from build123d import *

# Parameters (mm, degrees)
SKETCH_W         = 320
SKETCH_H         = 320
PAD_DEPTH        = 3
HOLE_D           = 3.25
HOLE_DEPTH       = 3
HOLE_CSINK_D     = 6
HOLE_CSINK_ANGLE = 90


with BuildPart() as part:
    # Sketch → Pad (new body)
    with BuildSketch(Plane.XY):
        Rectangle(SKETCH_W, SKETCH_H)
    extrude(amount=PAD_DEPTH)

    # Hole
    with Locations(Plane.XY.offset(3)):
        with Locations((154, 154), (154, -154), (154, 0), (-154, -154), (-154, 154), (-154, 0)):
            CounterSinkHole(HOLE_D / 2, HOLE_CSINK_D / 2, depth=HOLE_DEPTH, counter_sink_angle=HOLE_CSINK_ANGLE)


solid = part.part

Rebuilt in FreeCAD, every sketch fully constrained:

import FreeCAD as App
import Part
import Sketcher
from FreeCAD import Vector

doc = App.newDocument("Part")
body = doc.addObject("PartDesign::Body", "Body")

# Sketch on XY plane
sketch1 = body.newObject("Sketcher::SketchObject", "Sketch")
sketch1.AttachmentSupport = (doc.getObject("XY_Plane"), [""])
sketch1.MapMode = "FlatFace"
sketch1.addGeometry([
    Part.LineSegment(Vector(-160, 160, 0), Vector(-160, -160, 0)),
    Part.LineSegment(Vector(-160, -160, 0), Vector(160, -160, 0)),
    Part.LineSegment(Vector(160, -160, 0), Vector(160, 160, 0)),
    Part.LineSegment(Vector(160, 160, 0), Vector(-160, 160, 0)),
], False)
sketch1.addConstraint([
    Sketcher.Constraint("Coincident", 0, 2, 1, 1),
    Sketcher.Constraint("Coincident", 1, 2, 2, 1),
    Sketcher.Constraint("Coincident", 2, 2, 3, 1),
    Sketcher.Constraint("Coincident", 3, 2, 0, 1),
    Sketcher.Constraint("Vertical", 0),
    Sketcher.Constraint("Horizontal", 1),
    Sketcher.Constraint("Vertical", 2),
    Sketcher.Constraint("Horizontal", 3),
    Sketcher.Constraint("Symmetric", 0, 2, 2, 2, -1, 1),
    Sketcher.Constraint("Equal", 3, 0),
    Sketcher.Constraint("DistanceX", 1, 1, 1, 2, 320.0),
])
pad1 = body.newObject("PartDesign::Pad", "Pad")
pad1.Profile = sketch1
pad1.Length = 3

# Sketch on XY plane
sketch2 = body.newObject("Sketcher::SketchObject", "Sketch001")
sketch2.AttachmentSupport = (doc.getObject("XY_Plane"), [""])
sketch2.MapMode = "FlatFace"
sketch2.AttachmentOffset = App.Placement(Vector(0, 0, 3), App.Rotation())
sketch2.addGeometry([
    Part.Circle(Vector(154, 154, 0), Vector(0, 0, 1), 1.6),  # 0
    Part.Circle(Vector(154, -154, 0), Vector(0, 0, 1), 1.6),  # 1
    Part.Circle(Vector(154, 0, 0), Vector(0, 0, 1), 1.6),  # 2
    Part.Circle(Vector(-154, -154, 0), Vector(0, 0, 1), 1.6),  # 3
    Part.Circle(Vector(-154, 154, 0), Vector(0, 0, 1), 1.6),  # 4
    Part.Circle(Vector(-154, 0, 0), Vector(0, 0, 1), 1.6),  # 5
], False)
sketch2.addConstraint([
    Sketcher.Constraint("Equal", 0, 1),
    Sketcher.Constraint("Equal", 1, 2),
    Sketcher.Constraint("Equal", 2, 3),
    Sketcher.Constraint("Equal", 3, 4),
    Sketcher.Constraint("Equal", 4, 5),
    Sketcher.Constraint("Symmetric", 0, 3, 3, 3, -1, 1),
    Sketcher.Constraint("Symmetric", 1, 3, 4, 3, -1, 1),
    Sketcher.Constraint("Symmetric", 2, 3, 5, 3, -1, 1),
    Sketcher.Constraint("Symmetric", 1, 3, 3, 3, -2),
    Sketcher.Constraint("PointOnObject", 2, 3, -1),
    Sketcher.Constraint("Vertical", 1, 3, 2, 3),
    Sketcher.Constraint("Diameter", 0, 3.25),
    Sketcher.Constraint("DistanceX", -1, 1, 0, 3, 154.0),
    Sketcher.Constraint("DistanceY", -1, 1, 0, 3, 154.0),
])
doc.recompute()
hole = body.newObject("PartDesign::Hole", "Hole")
hole.Profile = sketch2
hole.ThreadType = "None"
hole.Diameter = 3.25
hole.DepthType = "Dimension"
hole.Depth = 3
hole.DrillPoint = "Flat"
hole.HoleCutType = "Countersink"
hole.HoleCutDiameter = 6
hole.HoleCutCountersinkAngle = 90

doc.recompute()
